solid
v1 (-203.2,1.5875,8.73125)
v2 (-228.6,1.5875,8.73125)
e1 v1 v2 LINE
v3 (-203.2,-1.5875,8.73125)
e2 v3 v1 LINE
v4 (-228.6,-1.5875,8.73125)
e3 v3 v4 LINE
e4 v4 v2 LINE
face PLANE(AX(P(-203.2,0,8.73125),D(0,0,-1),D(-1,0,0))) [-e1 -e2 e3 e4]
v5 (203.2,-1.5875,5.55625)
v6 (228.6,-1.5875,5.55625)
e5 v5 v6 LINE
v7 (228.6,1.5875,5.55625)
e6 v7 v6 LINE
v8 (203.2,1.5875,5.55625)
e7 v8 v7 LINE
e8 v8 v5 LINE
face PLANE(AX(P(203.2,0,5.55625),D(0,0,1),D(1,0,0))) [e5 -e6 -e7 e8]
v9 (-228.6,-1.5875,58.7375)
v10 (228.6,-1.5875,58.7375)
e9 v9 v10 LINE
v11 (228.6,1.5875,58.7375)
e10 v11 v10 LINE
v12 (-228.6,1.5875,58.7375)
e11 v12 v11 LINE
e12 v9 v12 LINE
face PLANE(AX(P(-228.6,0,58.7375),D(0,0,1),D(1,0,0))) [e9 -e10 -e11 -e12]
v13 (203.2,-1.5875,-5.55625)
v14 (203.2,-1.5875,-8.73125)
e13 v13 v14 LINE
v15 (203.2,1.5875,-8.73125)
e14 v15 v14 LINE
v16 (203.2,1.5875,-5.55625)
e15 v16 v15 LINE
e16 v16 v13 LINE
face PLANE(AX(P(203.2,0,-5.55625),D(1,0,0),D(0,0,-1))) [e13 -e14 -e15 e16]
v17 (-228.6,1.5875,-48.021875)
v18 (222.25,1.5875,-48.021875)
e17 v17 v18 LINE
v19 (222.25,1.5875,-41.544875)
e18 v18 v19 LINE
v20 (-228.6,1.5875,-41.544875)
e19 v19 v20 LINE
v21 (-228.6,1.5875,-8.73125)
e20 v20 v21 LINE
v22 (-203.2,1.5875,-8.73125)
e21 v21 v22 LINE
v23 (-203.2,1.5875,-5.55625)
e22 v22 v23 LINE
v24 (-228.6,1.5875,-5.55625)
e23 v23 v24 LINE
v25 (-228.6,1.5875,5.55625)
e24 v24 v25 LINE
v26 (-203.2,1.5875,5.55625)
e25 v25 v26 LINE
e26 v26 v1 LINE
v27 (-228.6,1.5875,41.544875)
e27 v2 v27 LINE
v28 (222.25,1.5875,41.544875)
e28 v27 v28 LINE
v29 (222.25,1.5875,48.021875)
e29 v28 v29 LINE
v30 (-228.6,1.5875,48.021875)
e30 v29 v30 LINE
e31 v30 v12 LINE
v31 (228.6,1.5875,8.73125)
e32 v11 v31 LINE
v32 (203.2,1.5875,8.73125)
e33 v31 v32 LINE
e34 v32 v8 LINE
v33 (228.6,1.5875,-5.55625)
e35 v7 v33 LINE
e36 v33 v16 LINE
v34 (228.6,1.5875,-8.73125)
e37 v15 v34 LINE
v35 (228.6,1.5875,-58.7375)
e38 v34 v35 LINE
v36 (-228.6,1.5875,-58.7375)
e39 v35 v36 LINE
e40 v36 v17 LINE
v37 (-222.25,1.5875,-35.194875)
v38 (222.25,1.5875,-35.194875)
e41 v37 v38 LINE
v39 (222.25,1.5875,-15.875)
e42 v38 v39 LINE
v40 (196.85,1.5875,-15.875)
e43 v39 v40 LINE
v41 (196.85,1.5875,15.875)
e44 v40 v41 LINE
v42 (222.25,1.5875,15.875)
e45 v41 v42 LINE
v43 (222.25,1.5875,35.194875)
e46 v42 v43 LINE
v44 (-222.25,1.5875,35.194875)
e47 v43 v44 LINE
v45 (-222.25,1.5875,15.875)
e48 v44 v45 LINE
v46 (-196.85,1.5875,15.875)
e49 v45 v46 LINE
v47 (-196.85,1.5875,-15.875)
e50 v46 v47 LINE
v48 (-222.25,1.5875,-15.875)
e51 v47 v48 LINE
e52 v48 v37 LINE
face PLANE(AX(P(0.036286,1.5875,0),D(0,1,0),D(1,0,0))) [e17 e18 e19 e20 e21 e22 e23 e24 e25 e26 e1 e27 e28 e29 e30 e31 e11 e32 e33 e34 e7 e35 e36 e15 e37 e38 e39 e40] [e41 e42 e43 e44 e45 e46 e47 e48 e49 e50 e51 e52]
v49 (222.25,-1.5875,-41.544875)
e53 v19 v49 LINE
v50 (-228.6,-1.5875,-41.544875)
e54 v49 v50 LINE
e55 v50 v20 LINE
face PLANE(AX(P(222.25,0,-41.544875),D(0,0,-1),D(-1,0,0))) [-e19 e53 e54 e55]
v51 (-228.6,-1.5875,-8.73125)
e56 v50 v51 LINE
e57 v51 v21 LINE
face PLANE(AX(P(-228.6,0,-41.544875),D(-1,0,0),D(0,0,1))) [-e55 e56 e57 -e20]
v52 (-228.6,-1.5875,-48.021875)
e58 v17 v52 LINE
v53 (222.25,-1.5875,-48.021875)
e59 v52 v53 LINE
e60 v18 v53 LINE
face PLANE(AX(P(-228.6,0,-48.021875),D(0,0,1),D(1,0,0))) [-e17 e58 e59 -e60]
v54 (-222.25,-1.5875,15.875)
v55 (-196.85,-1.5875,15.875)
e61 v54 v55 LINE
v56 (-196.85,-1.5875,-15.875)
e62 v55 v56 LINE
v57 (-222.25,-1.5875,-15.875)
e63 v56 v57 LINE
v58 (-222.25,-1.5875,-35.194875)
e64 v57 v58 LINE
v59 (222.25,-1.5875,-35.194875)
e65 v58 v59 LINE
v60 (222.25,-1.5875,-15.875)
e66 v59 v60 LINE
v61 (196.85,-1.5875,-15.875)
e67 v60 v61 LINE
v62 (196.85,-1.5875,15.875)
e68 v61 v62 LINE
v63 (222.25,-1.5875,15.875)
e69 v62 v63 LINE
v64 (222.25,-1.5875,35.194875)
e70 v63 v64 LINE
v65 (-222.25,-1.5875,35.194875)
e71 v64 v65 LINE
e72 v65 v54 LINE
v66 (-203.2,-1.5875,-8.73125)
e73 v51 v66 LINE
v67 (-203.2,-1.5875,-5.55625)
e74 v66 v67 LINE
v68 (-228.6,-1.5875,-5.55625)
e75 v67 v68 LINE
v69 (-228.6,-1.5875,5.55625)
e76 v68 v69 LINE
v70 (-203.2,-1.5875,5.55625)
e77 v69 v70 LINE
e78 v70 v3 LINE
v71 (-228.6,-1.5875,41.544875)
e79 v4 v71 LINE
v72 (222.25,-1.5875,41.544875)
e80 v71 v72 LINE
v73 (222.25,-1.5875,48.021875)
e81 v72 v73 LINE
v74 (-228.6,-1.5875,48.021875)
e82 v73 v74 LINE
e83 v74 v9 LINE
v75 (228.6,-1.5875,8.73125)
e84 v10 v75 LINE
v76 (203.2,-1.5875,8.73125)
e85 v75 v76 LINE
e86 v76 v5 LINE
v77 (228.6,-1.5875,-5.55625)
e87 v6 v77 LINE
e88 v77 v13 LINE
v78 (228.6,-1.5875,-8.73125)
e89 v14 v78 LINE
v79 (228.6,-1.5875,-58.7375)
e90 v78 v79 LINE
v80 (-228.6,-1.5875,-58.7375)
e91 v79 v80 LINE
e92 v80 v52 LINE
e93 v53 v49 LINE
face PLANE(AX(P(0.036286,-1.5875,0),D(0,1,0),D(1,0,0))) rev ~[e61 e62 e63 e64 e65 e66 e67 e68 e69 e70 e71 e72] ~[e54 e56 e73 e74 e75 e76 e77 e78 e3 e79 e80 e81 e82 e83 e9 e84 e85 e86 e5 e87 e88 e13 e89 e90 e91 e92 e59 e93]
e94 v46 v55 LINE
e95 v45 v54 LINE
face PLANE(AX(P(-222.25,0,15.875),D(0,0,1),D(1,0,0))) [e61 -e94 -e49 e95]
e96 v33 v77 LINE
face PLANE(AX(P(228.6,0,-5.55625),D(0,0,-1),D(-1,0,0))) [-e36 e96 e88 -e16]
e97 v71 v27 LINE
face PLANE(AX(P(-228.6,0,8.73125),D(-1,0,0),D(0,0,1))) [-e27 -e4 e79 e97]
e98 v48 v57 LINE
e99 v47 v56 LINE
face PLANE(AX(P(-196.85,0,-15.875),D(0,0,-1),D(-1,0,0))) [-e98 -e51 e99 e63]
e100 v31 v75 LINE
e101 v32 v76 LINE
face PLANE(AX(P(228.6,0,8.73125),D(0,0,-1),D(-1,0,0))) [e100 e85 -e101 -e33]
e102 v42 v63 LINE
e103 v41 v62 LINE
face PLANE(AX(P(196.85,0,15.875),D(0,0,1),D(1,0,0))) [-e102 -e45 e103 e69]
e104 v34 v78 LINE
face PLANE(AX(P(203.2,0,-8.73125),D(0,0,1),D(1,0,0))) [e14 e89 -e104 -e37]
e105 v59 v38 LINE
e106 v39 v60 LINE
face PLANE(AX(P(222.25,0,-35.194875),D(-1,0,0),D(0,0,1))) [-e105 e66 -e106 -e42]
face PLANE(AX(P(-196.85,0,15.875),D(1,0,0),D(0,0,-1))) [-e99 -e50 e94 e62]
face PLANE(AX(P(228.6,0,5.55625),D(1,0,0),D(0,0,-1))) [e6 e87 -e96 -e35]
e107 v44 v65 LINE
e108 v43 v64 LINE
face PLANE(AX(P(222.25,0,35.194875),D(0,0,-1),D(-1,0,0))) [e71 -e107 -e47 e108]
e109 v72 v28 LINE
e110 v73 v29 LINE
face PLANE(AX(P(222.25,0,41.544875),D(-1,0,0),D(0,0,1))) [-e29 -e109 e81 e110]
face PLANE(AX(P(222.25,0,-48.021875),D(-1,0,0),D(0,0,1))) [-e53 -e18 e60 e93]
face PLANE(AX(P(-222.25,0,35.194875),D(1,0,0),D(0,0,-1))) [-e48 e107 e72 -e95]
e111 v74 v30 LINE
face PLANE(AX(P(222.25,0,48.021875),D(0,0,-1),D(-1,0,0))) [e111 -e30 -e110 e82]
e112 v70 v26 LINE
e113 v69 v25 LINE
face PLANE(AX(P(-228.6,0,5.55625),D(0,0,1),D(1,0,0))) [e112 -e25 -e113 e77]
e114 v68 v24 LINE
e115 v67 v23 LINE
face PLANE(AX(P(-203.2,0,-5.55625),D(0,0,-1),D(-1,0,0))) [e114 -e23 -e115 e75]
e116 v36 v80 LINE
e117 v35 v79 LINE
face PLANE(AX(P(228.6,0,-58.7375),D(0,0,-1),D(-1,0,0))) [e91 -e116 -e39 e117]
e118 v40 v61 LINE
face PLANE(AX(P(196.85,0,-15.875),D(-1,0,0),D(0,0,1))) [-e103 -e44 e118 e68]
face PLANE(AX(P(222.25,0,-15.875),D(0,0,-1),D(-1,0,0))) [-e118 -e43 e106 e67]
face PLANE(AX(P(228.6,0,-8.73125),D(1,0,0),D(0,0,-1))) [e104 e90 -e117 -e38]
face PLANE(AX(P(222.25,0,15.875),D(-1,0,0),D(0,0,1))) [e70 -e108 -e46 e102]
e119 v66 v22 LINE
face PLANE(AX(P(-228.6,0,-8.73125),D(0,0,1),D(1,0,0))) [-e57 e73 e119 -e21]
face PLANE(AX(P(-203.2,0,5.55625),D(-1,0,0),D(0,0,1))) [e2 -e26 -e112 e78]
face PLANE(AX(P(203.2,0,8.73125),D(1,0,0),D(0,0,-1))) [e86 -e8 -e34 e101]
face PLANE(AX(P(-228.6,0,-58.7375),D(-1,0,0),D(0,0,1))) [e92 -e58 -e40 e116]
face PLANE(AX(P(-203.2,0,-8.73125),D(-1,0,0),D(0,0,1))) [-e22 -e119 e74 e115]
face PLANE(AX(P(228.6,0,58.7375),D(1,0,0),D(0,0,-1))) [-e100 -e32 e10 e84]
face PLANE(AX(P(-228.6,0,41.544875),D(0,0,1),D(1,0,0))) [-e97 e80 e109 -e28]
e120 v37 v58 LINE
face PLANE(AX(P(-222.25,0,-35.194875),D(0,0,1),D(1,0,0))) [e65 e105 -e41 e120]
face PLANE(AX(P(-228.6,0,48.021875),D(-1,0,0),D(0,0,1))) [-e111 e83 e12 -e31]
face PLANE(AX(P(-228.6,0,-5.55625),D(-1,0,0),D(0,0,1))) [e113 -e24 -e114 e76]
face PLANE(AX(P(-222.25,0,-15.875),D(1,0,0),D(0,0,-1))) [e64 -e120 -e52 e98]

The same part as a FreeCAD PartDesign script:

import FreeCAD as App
import Part
import Sketcher
from FreeCAD import Vector
Q = App.Units.Quantity


def add_polygon(sketch, points):
    """Adds a closed chain of lines whose ends are joined by coincident constraints."""
    first, n = sketch.GeometryCount, len(points)
    for a, b in zip(points, points[1:] + points[:1]):
        sketch.addGeometry(Part.LineSegment(App.Vector(*a, 0), App.Vector(*b, 0)), False)
    for i in range(n):
        sketch.addConstraint(Sketcher.Constraint("Coincident", first + i, 2, first + (i + 1) % n, 1))

doc = App.newDocument("Part")
body = doc.addObject("PartDesign::Body", "Body")

sketch1 = body.newObject("Sketcher::SketchObject", "Sketch")
sketch1.AttachmentSupport = (doc.getObject("XZ_Plane"), [""])
sketch1.MapMode = "FlatFace"
add_polygon(sketch1, [(222.25, -41.544875), (-228.6, -41.544875), (-228.6, -8.73125), (-203.2, -8.73125), (-203.2, -5.55625), (-228.6, -5.55625), (-228.6, 5.55625), (-203.2, 5.55625), (-203.2, 8.73125), (-228.6, 8.73125), (-228.6, 41.544875), (222.25, 41.544875), (222.25, 48.021875), (-228.6, 48.021875), (-228.6, 58.7375), (228.6, 58.7375), (228.6, 8.73125), (203.2, 8.73125), (203.2, 5.55625), (228.6, 5.55625), (228.6, -5.55625), (203.2, -5.55625), (203.2, -8.73125), (228.6, -8.73125), (228.6, -58.7375), (-228.6, -58.7375), (-228.6, -48.021875), (222.25, -48.021875)])
add_polygon(sketch1, [(-222.25, -35.194875), (222.25, -35.194875), (222.25, -15.875), (196.85, -15.875), (196.85, 15.875), (222.25, 15.875), (222.25, 35.194875), (-222.25, 35.194875), (-222.25, 15.875), (-196.85, 15.875), (-196.85, -15.875), (-222.25, -15.875)])
sketch1.addConstraint([
    Sketcher.Constraint("Horizontal", 0),
    Sketcher.Constraint("Vertical", 1),
    Sketcher.Constraint("Horizontal", 2),
    Sketcher.Constraint("Vertical", 3),
    Sketcher.Constraint("Horizontal", 4),
    Sketcher.Constraint("Vertical", 5),
    Sketcher.Constraint("Horizontal", 6),
    Sketcher.Constraint("Vertical", 7),
    Sketcher.Constraint("Horizontal", 8),
    Sketcher.Constraint("Vertical", 9),
    Sketcher.Constraint("Horizontal", 10),
    Sketcher.Constraint("Vertical", 11),
    Sketcher.Constraint("Horizontal", 12),
    Sketcher.Constraint("Vertical", 13),
    Sketcher.Constraint("Horizontal", 14),
    Sketcher.Constraint("Vertical", 15),
    Sketcher.Constraint("Horizontal", 16),
    Sketcher.Constraint("Vertical", 17),
    Sketcher.Constraint("Horizontal", 18),
    Sketcher.Constraint("Vertical", 19),
    Sketcher.Constraint("Horizontal", 20),
    Sketcher.Constraint("Vertical", 21),
    Sketcher.Constraint("Horizontal", 22),
    Sketcher.Constraint("Vertical", 23),
    Sketcher.Constraint("Horizontal", 24),
    Sketcher.Constraint("Vertical", 25),
    Sketcher.Constraint("Horizontal", 26),
    Sketcher.Constraint("Vertical", 27),
    Sketcher.Constraint("Horizontal", 28),
    Sketcher.Constraint("Vertical", 29),
    Sketcher.Constraint("Horizontal", 30),
    Sketcher.Constraint("Vertical", 31),
    Sketcher.Constraint("Horizontal", 32),
    Sketcher.Constraint("Vertical", 33),
    Sketcher.Constraint("Horizontal", 34),
    Sketcher.Constraint("Vertical", 35),
    Sketcher.Constraint("Horizontal", 36),
    Sketcher.Constraint("Vertical", 37),
    Sketcher.Constraint("Horizontal", 38),
    Sketcher.Constraint("Vertical", 39),
    Sketcher.Constraint("Symmetric", 1, 2, 15, 2, -1, 1),
    Sketcher.Constraint("Symmetric", 3, 2, 17, 2, -1, 1),
    Sketcher.Constraint("Symmetric", 5, 2, 19, 2, -1, 1),
    Sketcher.Constraint("Symmetric", 7, 2, 21, 2, -1, 1),
    Sketcher.Constraint("Symmetric", 13, 2, 23, 2, -1, 1),
    Sketcher.Constraint("Symmetric", 28, 2, 34, 2, -1, 1),
    Sketcher.Constraint("Symmetric", 30, 2, 36, 2, -1, 1),
    Sketcher.Constraint("Symmetric", 32, 2, 38, 2, -1, 1),
    Sketcher.Constraint("Symmetric", 8, 2, 15, 2, -2),
    Sketcher.Constraint("Symmetric", 6, 2, 17, 2, -2),
    Sketcher.Constraint("Symmetric", 32, 2, 35, 2, -2),
    Sketcher.Constraint("Symmetric", 12, 2, 25, 2, -1),
    Sketcher.Constraint("Symmetric", 10, 2, 27, 2, -1),
    Sketcher.Constraint("Vertical", 1, 2, 4, 2),
    Sketcher.Constraint("Vertical", 9, 2, 12, 2),
    Sketcher.Constraint("Vertical", 27, 2, 28, 2),
    Sketcher.Constraint("Equal", 22, 30),
    Sketcher.Constraint("DistanceX", 2, 1, 2, 2, Q("1 in")),
    Sketcher.Constraint("DistanceX", 14, 1, 14, 2, Q("18 in")),
    Sketcher.Constraint("DistanceX", 28, 1, 28, 2, Q("17.5 in")),
    Sketcher.Constraint("DistanceY", 31, 1, 31, 2, Q("1.25 in")),
    Sketcher.Constraint("DistanceY", 3, 1, 3, 2, Q("0.125 in")),
    Sketcher.Constraint("DistanceY", 5, 1, 5, 2, Q("0.4375 in")),
    Sketcher.Constraint("DistanceY", 11, 1, 11, 2, Q("0.255 in")),
    Sketcher.Constraint("DistanceY", 13, 1, 13, 2, Q("0.421875 in")),
    Sketcher.Constraint("DistanceY", 15, 2, 15, 1, Q("1.96875 in")),
    Sketcher.Constraint("DistanceY", 27, 2, 28, 2, Q("0.25 in")),
])
pad1 = body.newObject("PartDesign::Pad", "Pad")
pad1.Profile = sketch1
pad1.Length = Q("0.125 in")
pad1.Midplane = True

doc.recompute()
